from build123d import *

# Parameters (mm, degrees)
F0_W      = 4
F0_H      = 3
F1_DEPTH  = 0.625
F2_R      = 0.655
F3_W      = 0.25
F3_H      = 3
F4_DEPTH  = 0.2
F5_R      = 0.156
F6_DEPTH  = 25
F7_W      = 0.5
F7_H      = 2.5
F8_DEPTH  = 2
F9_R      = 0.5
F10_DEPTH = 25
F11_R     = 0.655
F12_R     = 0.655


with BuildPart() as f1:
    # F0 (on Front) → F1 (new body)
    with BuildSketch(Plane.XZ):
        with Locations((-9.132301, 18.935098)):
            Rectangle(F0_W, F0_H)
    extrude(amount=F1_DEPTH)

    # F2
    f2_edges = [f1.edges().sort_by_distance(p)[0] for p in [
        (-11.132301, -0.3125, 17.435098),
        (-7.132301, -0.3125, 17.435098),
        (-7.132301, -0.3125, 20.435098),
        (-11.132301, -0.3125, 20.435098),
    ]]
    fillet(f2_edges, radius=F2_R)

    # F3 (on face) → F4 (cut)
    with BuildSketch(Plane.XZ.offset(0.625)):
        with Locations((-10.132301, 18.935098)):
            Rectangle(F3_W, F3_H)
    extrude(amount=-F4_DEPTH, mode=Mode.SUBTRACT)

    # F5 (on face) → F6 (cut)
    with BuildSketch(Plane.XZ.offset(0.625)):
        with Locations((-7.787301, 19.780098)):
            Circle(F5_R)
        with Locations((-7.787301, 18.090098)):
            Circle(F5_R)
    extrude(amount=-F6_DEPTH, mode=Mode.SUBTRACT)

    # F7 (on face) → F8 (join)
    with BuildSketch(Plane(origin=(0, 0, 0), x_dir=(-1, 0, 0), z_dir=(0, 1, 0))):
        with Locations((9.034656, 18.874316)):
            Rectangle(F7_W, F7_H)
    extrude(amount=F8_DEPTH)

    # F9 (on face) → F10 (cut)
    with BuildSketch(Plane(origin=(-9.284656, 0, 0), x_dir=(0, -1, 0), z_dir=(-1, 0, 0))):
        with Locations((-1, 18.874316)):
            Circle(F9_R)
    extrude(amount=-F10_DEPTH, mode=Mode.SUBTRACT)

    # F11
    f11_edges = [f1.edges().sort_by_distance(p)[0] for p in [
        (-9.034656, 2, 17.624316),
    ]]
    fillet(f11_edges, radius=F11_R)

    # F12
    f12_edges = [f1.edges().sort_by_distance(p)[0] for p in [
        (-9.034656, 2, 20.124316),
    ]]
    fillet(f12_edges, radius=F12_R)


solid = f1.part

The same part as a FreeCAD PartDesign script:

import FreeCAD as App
import Part
import Sketcher

V = App.Vector
Q = App.Units.Quantity


def edges_at(feature, points):
    """Names of the edges that pass closest to the given points."""
    edges = feature.Shape.Edges
    near = lambda p: min(range(len(edges)), key=lambda i: edges[i].distToShape(Part.Vertex(*p))[0])
    return sorted({f"Edge{near(p) + 1}" for p in points})

doc = App.newDocument("Part")
params = doc.addObject("Spreadsheet::Sheet", "Params")
for row, (alias, value) in enumerate([
    ("sketch1_width", "4 mm"),
    ("sketch1_height", "3 mm"),
    ("pad1_length", "0.625 mm"),
    ("fillet_radius", "0.655 mm"),
    ("sketch2_height", "3 mm"),
    ("sketch2_width", "0.25 mm"),
    ("pocket1_length", "0.2 mm"),
    ("pocket2_length", "25 mm"),
    ("sketch4_width", "0.5 mm"),
    ("sketch4_height", "2.5 mm"),
    ("pad2_length", "2 mm"),
    ("sketch5_diameter", "1 mm"),
    ("pocket3_length", "25 mm"),
    ("fillet2_radius", "0.655 mm"),
    ("fillet3_radius", "0.655 mm"),
], start=1):
    params.set(f"A{row}", alias)
    params.set(f"B{row}", "=" + value)
    params.setAlias(f"B{row}", alias)

body = doc.addObject("PartDesign::Body", "Body")

sketch1 = doc.addObject("Sketcher::SketchObject", "Sketch")
body.addObject(sketch1)
sketch1.AttachmentSupport = (doc.XZ_Plane, [""])
sketch1.MapMode = "FlatFace"
sketch1.addGeometry(Part.LineSegment(V(-11.1, 20.4, 0), V(-11.1, 17.4, 0)), False)
sketch1.addGeometry(Part.LineSegment(V(-11.1, 17.4, 0), V(-7.1, 17.4, 0)), False)
sketch1.addGeometry(Part.LineSegment(V(-7.1, 17.4, 0), V(-7.1, 20.4, 0)), False)
sketch1.addGeometry(Part.LineSegment(V(-7.1, 20.4, 0), V(-11.1, 20.4, 0)), False)
sketch1.addConstraint(Sketcher.Constraint("Coincident", 0, 2, 1, 1))
sketch1.addConstraint(Sketcher.Constraint("Coincident", 1, 2, 2, 1))
sketch1.addConstraint(Sketcher.Constraint("Coincident", 2, 2, 3, 1))
sketch1.addConstraint(Sketcher.Constraint("Coincident", 3, 2, 0, 1))
sketch1.addConstraint(Sketcher.Constraint("Vertical", 0))
sketch1.addConstraint(Sketcher.Constraint("Horizontal", 1))
sketch1.addConstraint(Sketcher.Constraint("Vertical", 2))
sketch1.addConstraint(Sketcher.Constraint("Horizontal", 3))
sketch1.addConstraint(Sketcher.Constraint("DistanceX", 1, 1, 1, 2, Q("4 mm")))
sketch1.addConstraint(Sketcher.Constraint("DistanceY", 0, 2, 0, 1, Q("3 mm")))
sketch1.addConstraint(Sketcher.Constraint("DistanceX", 0, 2, -1, 1, Q("11.132301 mm")))
sketch1.addConstraint(Sketcher.Constraint("DistanceY", -1, 1, 0, 2, Q("17.435098 mm")))
sketch1.setExpression("Constraints[8]", "Params.sketch1_width")
sketch1.setExpression("Constraints[9]", "Params.sketch1_height")
pad1 = doc.addObject("PartDesign::Pad", "Pad")
body.addObject(pad1)
pad1.Profile = sketch1
pad1.setExpression("Length", "Params.pad1_length")
doc.recompute()

fillet = doc.addObject("PartDesign::Fillet", "Fillet")
body.addObject(fillet)
fillet.Base = (pad1, edges_at(pad1, [
    (-11.132, -0.312, 17.435),
    (-7.132, -0.312, 17.435),
    (-7.132, -0.312, 20.435),
    (-11.132, -0.312, 20.435),
]))
fillet.setExpression("Radius", "Params.fillet_radius")

sketch2 = doc.addObject("Sketcher::SketchObject", "Sketch001")
body.addObject(sketch2)
sketch2.AttachmentSupport = (doc.XZ_Plane, [""])
sketch2.MapMode = "FlatFace"
sketch2.AttachmentOffset = App.Placement(V(0, 0, 0.625), App.Rotation())
sketch2.addGeometry(Part.LineSegment(V(-10.26, 20.44, 0), V(-10.26, 17.44, 0)), False)
sketch2.addGeometry(Part.LineSegment(V(-10.26, 17.44, 0), V(-10.01, 17.44, 0)), False)
sketch2.addGeometry(Part.LineSegment(V(-10.01, 17.44, 0), V(-10.01, 20.44, 0)), False)
sketch2.addGeometry(Part.LineSegment(V(-10.01, 20.44, 0), V(-10.26, 20.44, 0)), False)
sketch2.addConstraint(Sketcher.Constraint("Coincident", 0, 2, 1, 1))
sketch2.addConstraint(Sketcher.Constraint("Coincident", 1, 2, 2, 1))
sketch2.addConstraint(Sketcher.Constraint("Coincident", 2, 2, 3, 1))
sketch2.addConstraint(Sketcher.Constraint("Coincident", 3, 2, 0, 1))
sketch2.addConstraint(Sketcher.Constraint("Vertical", 0))
sketch2.addConstraint(Sketcher.Constraint("Horizontal", 1))
sketch2.addConstraint(Sketcher.Constraint("Vertical", 2))
sketch2.addConstraint(Sketcher.Constraint("Horizontal", 3))
sketch2.addConstraint(Sketcher.Constraint("DistanceY", 0, 2, 0, 1, Q("3 mm")))
sketch2.addConstraint(Sketcher.Constraint("DistanceX", 1, 1, 1, 2, Q("0.25 mm")))
sketch2.addConstraint(Sketcher.Constraint("DistanceX", 0, 2, -1, 1, Q("10.257301 mm")))
sketch2.addConstraint(Sketcher.Constraint("DistanceY", -1, 1, 0, 2, Q("17.435098 mm")))
sketch2.setExpression("Constraints[8]", "Params.sketch2_height")
sketch2.setExpression("Constraints[9]", "Params.sketch2_width")
pocket1 = doc.addObject("PartDesign::Pocket", "Pocket")
body.addObject(pocket1)
pocket1.Profile = sketch2
pocket1.setExpression("Length", "Params.pocket1_length")

sketch3 = doc.addObject("Sketcher::SketchObject", "Sketch002")
body.addObject(sketch3)
sketch3.AttachmentSupport = (doc.XZ_Plane, [""])
sketch3.MapMode = "FlatFace"
sketch3.AttachmentOffset = App.Placement(V(0, 0, 0.625), App.Rotation())
sketch3.addGeometry(Part.Circle(V(-7.79, 19.78, 0), V(0, 0, 1), 0.16), False)
sketch3.addGeometry(Part.Circle(V(-7.79, 18.09, 0), V(0, 0, 1), 0.16), False)
sketch3.addConstraint(Sketcher.Constraint("Equal", 0, 1))
sketch3.addConstraint(Sketcher.Constraint("Vertical", 0, 3, 1, 3))
sketch3.addConstraint(Sketcher.Constraint("Diameter", 0, Q("0.312 mm")))
sketch3.addConstraint(Sketcher.Constraint("DistanceY", 1, 3, 0, 3, Q("1.69 mm")))
sketch3.addConstraint(Sketcher.Constraint("DistanceX", 0, 3, -1, 1, Q("7.787301 mm")))
sketch3.addConstraint(Sketcher.Constraint("DistanceY", -1, 1, 1, 3, Q("18.090098 mm")))
pocket2 = doc.addObject("PartDesign::Pocket", "Pocket001")
body.addObject(pocket2)
pocket2.Profile = sketch3
pocket2.setExpression("Length", "Params.pocket2_length")

sketch4 = doc.addObject("Sketcher::SketchObject", "Sketch003")
body.addObject(sketch4)
sketch4.AttachmentSupport = (doc.XZ_Plane, [""])
sketch4.MapMode = "FlatFace"
sketch4.addGeometry(Part.LineSegment(V(-8.8, 20.1, 0), V(-8.8, 17.6, 0)), False)
sketch4.addGeometry(Part.LineSegment(V(-8.8, 17.6, 0), V(-9.3, 17.6, 0)), False)
sketch4.addGeometry(Part.LineSegment(V(-9.3, 17.6, 0), V(-9.3, 20.1, 0)), False)
sketch4.addGeometry(Part.LineSegment(V(-9.3, 20.1, 0), V(-8.8, 20.1, 0)), False)
sketch4.addConstraint(Sketcher.Constraint("Coincident", 0, 2, 1, 1))
sketch4.addConstraint(Sketcher.Constraint("Coincident", 1, 2, 2, 1))
sketch4.addConstraint(Sketcher.Constraint("Coincident", 2, 2, 3, 1))
sketch4.addConstraint(Sketcher.Constraint("Coincident", 3, 2, 0, 1))
sketch4.addConstraint(Sketcher.Constraint("Vertical", 0))
sketch4.addConstraint(Sketcher.Constraint("Horizontal", 1))
sketch4.addConstraint(Sketcher.Constraint("Vertical", 2))
sketch4.addConstraint(Sketcher.Constraint("Horizontal", 3))
sketch4.addConstraint(Sketcher.Constraint("DistanceX", 1, 2, 1, 1, Q("0.5 mm")))
sketch4.addConstraint(Sketcher.Constraint("DistanceY", 0, 2, 0, 1, Q("2.5 mm")))
sketch4.addConstraint(Sketcher.Constraint("DistanceX", 0, 2, -1, 1, Q("8.784656 mm")))
sketch4.addConstraint(Sketcher.Constraint("DistanceY", -1, 1, 0, 2, Q("17.624316 mm")))
sketch4.setExpression("Constraints[8]", "Params.sketch4_width")
sketch4.setExpression("Constraints[9]", "Params.sketch4_height")
pad2 = doc.addObject("PartDesign::Pad", "Pad001")
body.addObject(pad2)
pad2.Profile = sketch4
pad2.setExpression("Length", "Params.pad2_length")
pad2.Reversed = True

sketch5 = doc.addObject("Sketcher::SketchObject", "Sketch004")
body.addObject(sketch5)
sketch5.AttachmentSupport = (doc.YZ_Plane, [""])
sketch5.MapMode = "FlatFace"
sketch5.AttachmentOffset = App.Placement(V(0, 0, -9.284656), App.Rotation())
sketch5.addGeometry(Part.Circle(V(1, 18.9, 0), V(0, 0, 1), 0.5), False)
sketch5.addConstraint(Sketcher.Constraint("Diameter", 0, Q("1 mm")))
sketch5.addConstraint(Sketcher.Constraint("DistanceX", -1, 1, 0, 3, Q("1 mm")))
sketch5.addConstraint(Sketcher.Constraint("DistanceY", -1, 1, 0, 3, Q("18.874316 mm")))
sketch5.setExpression("Constraints[0]", "Params.sketch5_diameter")
pocket3 = doc.addObject("PartDesign::Pocket", "Pocket002")
body.addObject(pocket3)
pocket3.Profile = sketch5
pocket3.setExpression("Length", "Params.pocket3_length")
pocket3.Reversed = True
doc.recompute()

fillet2 = doc.addObject("PartDesign::Fillet", "Fillet001")
body.addObject(fillet2)
fillet2.Base = (pocket3, edges_at(pocket3, [(-9.035, 2, 17.624)]))
fillet2.setExpression("Radius", "Params.fillet2_radius")
doc.recompute()

fillet3 = doc.addObject("PartDesign::Fillet", "Fillet002")
body.addObject(fillet3)
fillet3.Base = (fillet2, edges_at(fillet2, [(-9.035, 2, 20.124)]))
fillet3.setExpression("Radius", "Params.fillet3_radius")

doc.recompute()
